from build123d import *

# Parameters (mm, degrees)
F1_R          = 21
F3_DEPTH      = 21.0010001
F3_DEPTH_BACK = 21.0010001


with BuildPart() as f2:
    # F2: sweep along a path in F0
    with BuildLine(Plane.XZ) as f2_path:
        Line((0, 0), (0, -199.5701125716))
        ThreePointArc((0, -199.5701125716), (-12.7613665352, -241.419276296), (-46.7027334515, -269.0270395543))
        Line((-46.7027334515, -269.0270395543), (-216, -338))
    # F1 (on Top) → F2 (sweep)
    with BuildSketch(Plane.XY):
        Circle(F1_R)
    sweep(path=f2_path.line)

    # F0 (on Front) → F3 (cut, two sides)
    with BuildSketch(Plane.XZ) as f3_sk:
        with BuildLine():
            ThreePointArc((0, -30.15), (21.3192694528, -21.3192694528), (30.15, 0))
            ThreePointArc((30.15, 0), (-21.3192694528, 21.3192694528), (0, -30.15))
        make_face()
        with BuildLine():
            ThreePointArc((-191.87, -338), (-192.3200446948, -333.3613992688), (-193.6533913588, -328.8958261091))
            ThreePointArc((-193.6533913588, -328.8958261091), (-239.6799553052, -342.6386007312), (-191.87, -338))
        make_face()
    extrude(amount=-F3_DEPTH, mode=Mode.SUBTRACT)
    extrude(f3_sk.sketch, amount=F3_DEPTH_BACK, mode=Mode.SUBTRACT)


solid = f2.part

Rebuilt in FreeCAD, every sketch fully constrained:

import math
import FreeCAD as App
import Part
import Sketcher
from FreeCAD import Vector

doc = App.newDocument("Part")
body = doc.addObject("PartDesign::Body", "Body")

# Sketch on XY plane
sketch1 = doc.addObject("Sketcher::SketchObject", "Sketch")
body.addObject(sketch1)
sketch1.AttachmentSupport = (doc.XY_Plane, [""])
sketch1.MapMode = "FlatFace"
sketch1.addGeometry(Part.Circle(Vector(0, 0, 0), Vector(0, 0, 1), 21), False)
sketch1.addConstraint([
    Sketcher.Constraint("Coincident", 0, 3, -1, 1),
    Sketcher.Constraint("Diameter", 0, 42.0),
])

# Sketch on XZ plane
sketch2 = doc.addObject("Sketcher::SketchObject", "Sketch001")
body.addObject(sketch2)
sketch2.AttachmentSupport = (doc.XZ_Plane, [""])
sketch2.MapMode = "FlatFace"
sketch2.addGeometry([
    Part.LineSegment(Vector(0, 0, 0), Vector(0, -199.570113, 0)),
    Part.ArcOfCircle(Part.Circle(Vector(-75, -199.570113, 0), Vector(0, 0, 1), 75), math.radians(-67.833654), math.radians(0)),
    Part.LineSegment(Vector(-46.702733, -269.02704, 0), Vector(-216, -338, 0)),
], False)
sketch2.addConstraint([
    Sketcher.Constraint("Tangent", 0, 2, 1, 2),
    Sketcher.Constraint("Tangent", 1, 1, 2, 1),
    Sketcher.Constraint("Vertical", 0),
    Sketcher.Constraint("Coincident", 0, 1, -1, 1),
    Sketcher.Constraint("Radius", 1, 75.0),
    Sketcher.Constraint("DistanceX", 2, 2, -1, 1, 216.0),
    Sketcher.Constraint("DistanceY", 2, 2, -1, 1, 338.0),
    Sketcher.Constraint("Distance", 2, 182.808188),
])
doc.recompute()

additivepipe = doc.addObject("PartDesign::AdditivePipe", "AdditivePipe")
body.addObject(additivepipe)
additivepipe.Profile = sketch1
additivepipe.Spine = (sketch2, ["Edge1", "Edge2", "Edge3"])

# Sketch on XZ plane
sketch3 = doc.addObject("Sketcher::SketchObject", "Sketch002")
body.addObject(sketch3)
sketch3.AttachmentSupport = (doc.XZ_Plane, [""])
sketch3.MapMode = "FlatFace"
sketch3.addGeometry([
    Part.ArcOfCircle(Part.Circle(Vector(0, 0, 0), Vector(0, 0, 1), 30.15), math.radians(-90), math.radians(0)),
    Part.ArcOfCircle(Part.Circle(Vector(0, 0, 0), Vector(0, 0, 1), 30.15), math.radians(0), math.radians(270)),
    Part.ArcOfCircle(Part.Circle(Vector(-216, -338, 0), Vector(0, 0, 1), 24.13), math.radians(0), math.radians(22.166346)),
    Part.ArcOfCircle(Part.Circle(Vector(-216, -338, 0), Vector(0, 0, 1), 24.13), math.radians(22.166346), math.radians(360)),
], False)
sketch3.addConstraint([
    Sketcher.Constraint("Tangent", 0, 1, 1, 2),
    Sketcher.Constraint("Coincident", 1, 1, 0, 2),
    Sketcher.Constraint("Tangent", 2, 1, 3, 2),
    Sketcher.Constraint("Coincident", 3, 1, 2, 2),
    Sketcher.Constraint("Coincident", 0, 3, -1, 1),
    Sketcher.Constraint("PointOnObject", 0, 1, -2),
    Sketcher.Constraint("PointOnObject", 1, 1, -1),
    Sketcher.Constraint("Horizontal", 3, 3, 2, 1),
    Sketcher.Constraint("Radius", 0, 30.15),
    Sketcher.Constraint("Radius", 2, 24.13),
    Sketcher.Constraint("DistanceX", 2, 3, -1, 1, 216.0),
    Sketcher.Constraint("DistanceY", 2, 3, -1, 1, 338.0),
    Sketcher.Constraint("DistanceX", 3, 1, -1, 1, 193.653391),
])
pocket1 = doc.addObject("PartDesign::Pocket", "Pocket")
body.addObject(pocket1)
pocket1.Profile = sketch3
pocket1.Type = "ThroughAll"
pocket1.Midplane = True

doc.recompute()
